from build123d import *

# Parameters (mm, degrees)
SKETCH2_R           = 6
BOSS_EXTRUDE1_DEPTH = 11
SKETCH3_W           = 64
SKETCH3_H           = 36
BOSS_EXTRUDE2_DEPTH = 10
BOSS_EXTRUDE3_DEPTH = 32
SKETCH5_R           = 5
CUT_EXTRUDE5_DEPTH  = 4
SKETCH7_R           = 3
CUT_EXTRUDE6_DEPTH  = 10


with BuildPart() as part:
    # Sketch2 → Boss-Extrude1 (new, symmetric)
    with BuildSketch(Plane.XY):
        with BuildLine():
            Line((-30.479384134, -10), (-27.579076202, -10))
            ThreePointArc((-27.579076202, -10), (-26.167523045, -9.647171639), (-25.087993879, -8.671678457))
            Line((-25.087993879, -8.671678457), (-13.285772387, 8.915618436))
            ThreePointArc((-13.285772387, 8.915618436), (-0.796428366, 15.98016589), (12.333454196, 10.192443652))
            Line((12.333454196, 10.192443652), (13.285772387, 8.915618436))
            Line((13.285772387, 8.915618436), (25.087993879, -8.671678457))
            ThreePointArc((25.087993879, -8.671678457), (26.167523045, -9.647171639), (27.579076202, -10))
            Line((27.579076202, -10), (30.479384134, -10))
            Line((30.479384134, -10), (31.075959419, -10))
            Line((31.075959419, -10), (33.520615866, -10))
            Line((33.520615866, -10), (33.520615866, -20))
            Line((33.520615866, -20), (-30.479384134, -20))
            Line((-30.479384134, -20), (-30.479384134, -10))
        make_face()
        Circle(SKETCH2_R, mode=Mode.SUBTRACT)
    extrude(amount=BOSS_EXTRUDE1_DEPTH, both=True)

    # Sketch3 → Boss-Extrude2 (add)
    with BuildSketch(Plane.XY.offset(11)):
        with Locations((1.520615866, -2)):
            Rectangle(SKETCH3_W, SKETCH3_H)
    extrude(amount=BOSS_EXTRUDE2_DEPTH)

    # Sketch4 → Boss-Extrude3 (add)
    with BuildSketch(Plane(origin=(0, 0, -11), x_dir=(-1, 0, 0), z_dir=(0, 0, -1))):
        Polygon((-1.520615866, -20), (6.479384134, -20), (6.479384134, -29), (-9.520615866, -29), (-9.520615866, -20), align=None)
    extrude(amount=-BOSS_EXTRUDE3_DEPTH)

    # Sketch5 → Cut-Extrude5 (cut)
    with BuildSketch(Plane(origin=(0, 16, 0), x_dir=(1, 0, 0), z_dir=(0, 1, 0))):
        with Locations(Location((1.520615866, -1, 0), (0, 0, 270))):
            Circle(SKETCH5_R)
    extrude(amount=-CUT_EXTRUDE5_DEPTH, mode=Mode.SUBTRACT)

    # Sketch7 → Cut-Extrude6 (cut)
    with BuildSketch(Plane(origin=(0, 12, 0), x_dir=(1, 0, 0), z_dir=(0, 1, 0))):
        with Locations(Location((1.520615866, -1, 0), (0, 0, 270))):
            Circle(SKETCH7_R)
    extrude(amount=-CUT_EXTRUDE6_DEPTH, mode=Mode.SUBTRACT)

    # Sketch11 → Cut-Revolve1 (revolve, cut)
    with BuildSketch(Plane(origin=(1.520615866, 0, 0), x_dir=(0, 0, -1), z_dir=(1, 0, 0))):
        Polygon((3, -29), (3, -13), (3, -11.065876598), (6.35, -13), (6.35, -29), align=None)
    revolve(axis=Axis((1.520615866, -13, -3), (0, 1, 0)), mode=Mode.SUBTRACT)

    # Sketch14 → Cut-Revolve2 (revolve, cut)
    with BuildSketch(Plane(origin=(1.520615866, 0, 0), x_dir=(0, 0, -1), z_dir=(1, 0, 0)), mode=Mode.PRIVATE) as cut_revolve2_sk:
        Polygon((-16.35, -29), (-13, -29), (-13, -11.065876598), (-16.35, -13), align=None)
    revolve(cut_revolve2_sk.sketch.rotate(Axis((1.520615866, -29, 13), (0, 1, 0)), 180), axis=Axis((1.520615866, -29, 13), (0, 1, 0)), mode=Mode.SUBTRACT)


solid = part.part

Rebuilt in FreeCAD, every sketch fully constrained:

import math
import FreeCAD as App
import Part
import Sketcher
Q = App.Units.Quantity


def add_polygon(sketch, points):
    """Adds a closed chain of lines whose ends are joined by coincident constraints."""
    first, n = sketch.GeometryCount, len(points)
    for a, b in zip(points, points[1:] + points[:1]):
        sketch.addGeometry(Part.LineSegment(App.Vector(*a, 0), App.Vector(*b, 0)), False)
    for i in range(n):
        sketch.addConstraint(Sketcher.Constraint("Coincident", first + i, 2, first + (i + 1) % n, 1))

doc = App.newDocument("Part")
body = doc.addObject("PartDesign::Body", "Body")

# Sketch on XY plane
sketch1 = body.newObject("Sketcher::SketchObject", "Sketch")
sketch1.AttachmentSupport = (doc.getObject("XY_Plane"), [""])
sketch1.MapMode = "FlatFace"
sketch1.addGeometry([
    Part.LineSegment(App.Vector(-27.6, -10, 0), App.Vector(-30.5, -10, 0)),  # 0
    Part.LineSegment(App.Vector(-30.5, -10, 0), App.Vector(-30.5, -20, 0)),  # 1
    Part.LineSegment(App.Vector(-30.5, -20, 0), App.Vector(33.5, -20, 0)),  # 2
    Part.LineSegment(App.Vector(33.5, -20, 0), App.Vector(33.5, -10, 0)),  # 3
    Part.LineSegment(App.Vector(33.5, -10, 0), App.Vector(27.6, -10, 0)),  # 4
    Part.ArcOfCircle(Part.Circle(App.Vector(27.6, -7, 0), App.Vector(0, 0, 1), 3), math.radians(-146), math.radians(-90)),  # 5
    Part.LineSegment(App.Vector(25.1, -8.7, 0), App.Vector(13.3, 8.9, 0)),  # 6
    Part.LineSegment(App.Vector(13.3, 8.9, 0), App.Vector(12.3, 10.2, 0)),  # 7
    Part.ArcOfCircle(Part.Circle(App.Vector(0, 0, 0), App.Vector(0, 0, 1), 16), math.radians(40), math.radians(146)),  # 8
    Part.LineSegment(App.Vector(-13.3, 8.9, 0), App.Vector(-25.1, -8.7, 0)),  # 9
    Part.ArcOfCircle(Part.Circle(App.Vector(-27.6, -7, 0), App.Vector(0, 0, 1), 3), math.radians(-90), math.radians(-34)),  # 10
    Part.Circle(App.Vector(0, 0, 0), App.Vector(0, 0, 1), 6),  # 11
], False)
sketch1.addConstraint([
    Sketcher.Constraint("Coincident", 0, 2, 1, 1),
    Sketcher.Constraint("Coincident", 1, 2, 2, 1),
    Sketcher.Constraint("Coincident", 2, 2, 3, 1),
    Sketcher.Constraint("Coincident", 3, 2, 4, 1),
    Sketcher.Constraint("Tangent", 4, 2, 5, 2),
    Sketcher.Constraint("Tangent", 5, 1, 6, 1),
    Sketcher.Constraint("Coincident", 6, 2, 7, 1),
    Sketcher.Constraint("Coincident", 7, 2, 8, 1),
    Sketcher.Constraint("Tangent", 8, 2, 9, 1),
    Sketcher.Constraint("Tangent", 9, 2, 10, 2),
    Sketcher.Constraint("Tangent", 10, 1, 0, 1),
    Sketcher.Constraint("Horizontal", 0),
    Sketcher.Constraint("Vertical", 1),
    Sketcher.Constraint("Horizontal", 2),
    Sketcher.Constraint("Vertical", 3),
    Sketcher.Constraint("Horizontal", 4),
    Sketcher.Constraint("Coincident", 8, 3, -1, 1),
    Sketcher.Constraint("Coincident", 11, 3, -1, 1),
    Sketcher.Constraint("Equal", 5, 10),
    Sketcher.Constraint("Symmetric", 5, 3, 10, 3, -2),
    Sketcher.Constraint("Symmetric", 6, 2, 8, 2, -2),
    Sketcher.Constraint("Diameter", 11, Q("12 mm")),
    Sketcher.Constraint("Radius", 5, Q("3 mm")),
    Sketcher.Constraint("Radius", 8, Q("16 mm")),
    Sketcher.Constraint("DistanceX", 2, 1, 2, 2, Q("64 mm")),
    Sketcher.Constraint("DistanceY", 1, 2, 1, 1, Q("10 mm")),
    Sketcher.Constraint("DistanceY", 5, 3, -1, 1, Q("7 mm")),
    Sketcher.Constraint("DistanceX", 4, 2, 4, 1, Q("5.94154 mm")),
    Sketcher.Constraint("DistanceX", 0, 2, 0, 1, Q("2.900308 mm")),
    Sketcher.Constraint("DistanceX", 7, 2, 6, 2, Q("0.952318 mm")),
])
pad1 = body.newObject("PartDesign::Pad", "Pad")
pad1.Profile = sketch1
pad1.Length = 22
pad1.Midplane = True

# Sketch on XY plane
sketch2 = body.newObject("Sketcher::SketchObject", "Sketch001")
sketch2.AttachmentSupport = (doc.getObject("XY_Plane"), [""])
sketch2.MapMode = "FlatFace"
sketch2.AttachmentOffset = App.Placement(App.Vector(0, 0, 11), App.Rotation())
add_polygon(sketch2, [(-30, 16), (-30, -20), (34, -20), (34, 16)])  # lines 0-3
sketch2.addConstraint([
    Sketcher.Constraint("Vertical", 0),
    Sketcher.Constraint("Horizontal", 1),
    Sketcher.Constraint("Vertical", 2),
    Sketcher.Constraint("Horizontal", 3),
    Sketcher.Constraint("DistanceX", 1, 1, 1, 2, Q("64 mm")),
    Sketcher.Constraint("DistanceY", 0, 2, 0, 1, Q("36 mm")),
    Sketcher.Constraint("DistanceY", 0, 2, -1, 1, Q("20 mm")),
    Sketcher.Constraint("DistanceX", 0, 2, -1, 1, Q("30.479384 mm")),
])
pad2 = body.newObject("PartDesign::Pad", "Pad001")
pad2.Profile = sketch2
pad2.Length = 10

# Sketch on XY plane
sketch3 = body.newObject("Sketcher::SketchObject", "Sketch002")
sketch3.AttachmentSupport = (doc.getObject("XY_Plane"), [""])
sketch3.MapMode = "FlatFace"
sketch3.AttachmentOffset = App.Placement(App.Vector(0, 0, -11), App.Rotation())
add_polygon(sketch3, [(-6, -20), (10, -20), (10, -29), (-6, -29)])  # lines 0-3
sketch3.addConstraint([
    Sketcher.Constraint("Horizontal", 0),
    Sketcher.Constraint("Vertical", 1),
    Sketcher.Constraint("Horizontal", 2),
    Sketcher.Constraint("Vertical", 3),
    Sketcher.Constraint("DistanceX", 0, 1, 0, 2, Q("16 mm")),
    Sketcher.Constraint("DistanceY", 1, 2, 1, 1, Q("9 mm")),
    Sketcher.Constraint("DistanceY", 0, 2, -1, 1, Q("20 mm")),
    Sketcher.Constraint("DistanceX", -1, 1, 0, 2, Q("9.520616 mm")),
])
pad3 = body.newObject("PartDesign::Pad", "Pad002")
pad3.Profile = sketch3
pad3.Length = 32

# Sketch on XZ plane
sketch4 = body.newObject("Sketcher::SketchObject", "Sketch003")
sketch4.AttachmentSupport = (doc.getObject("XZ_Plane"), [""])
sketch4.MapMode = "FlatFace"
sketch4.AttachmentOffset = App.Placement(App.Vector(0, 0, -16), App.Rotation())
sketch4.addGeometry(Part.Circle(App.Vector(2, 1, 0), App.Vector(0, 0, 1), 5), False)
sketch4.addConstraint([
    Sketcher.Constraint("Diameter", 0, Q("10 mm")),
    Sketcher.Constraint("DistanceY", -1, 1, 0, 3, Q("1 mm")),
    Sketcher.Constraint("DistanceX", -1, 1, 0, 3, Q("1.520616 mm")),
])
pocket1 = body.newObject("PartDesign::Pocket", "Pocket")
pocket1.Profile = sketch4
pocket1.Length = 4
pocket1.Reversed = True

# Sketch on XZ plane
sketch5 = body.newObject("Sketcher::SketchObject", "Sketch004")
sketch5.AttachmentSupport = (doc.getObject("XZ_Plane"), [""])
sketch5.MapMode = "FlatFace"
sketch5.AttachmentOffset = App.Placement(App.Vector(0, 0, -12), App.Rotation())
sketch5.addGeometry(Part.Circle(App.Vector(1.5, 1, 0), App.Vector(0, 0, 1), 3), False)
sketch5.addConstraint([
    Sketcher.Constraint("Diameter", 0, Q("6 mm")),
    Sketcher.Constraint("DistanceY", -1, 1, 0, 3, Q("1 mm")),
    Sketcher.Constraint("DistanceX", -1, 1, 0, 3, Q("1.520616 mm")),
])
pocket2 = body.newObject("PartDesign::Pocket", "Pocket001")
pocket2.Profile = sketch5
pocket2.Length = 10
pocket2.Reversed = True

# Sketch on YZ plane
sketch6 = body.newObject("Sketcher::SketchObject", "Sketch005")
sketch6.AttachmentSupport = (doc.getObject("YZ_Plane"), [""])
sketch6.MapMode = "FlatFace"
sketch6.AttachmentOffset = App.Placement(App.Vector(0, 0, 1.520616), App.Rotation())
add_polygon(sketch6, [(-11.1, -3), (-29, -3), (-29, -6.3), (-13, -6.3)])  # lines 0-3
sketch6.addGeometry(Part.LineSegment(App.Vector(-29, -3, 0), App.Vector(-11.1, -3, 0)), True)  # axis
sketch6.addConstraint([
    Sketcher.Constraint("Horizontal", 0),
    Sketcher.Constraint("Vertical", 1),
    Sketcher.Constraint("Horizontal", 2),
    Sketcher.Constraint("Horizontal", 4),
    Sketcher.Constraint("Coincident", 4, 1, 0, 2),
    Sketcher.Constraint("Equal", 0, 4),
    Sketcher.Constraint("DistanceX", 2, 1, 2, 2, Q("16 mm")),
    Sketcher.Constraint("Angle", 3, Q("60 deg")),
    Sketcher.Constraint("DistanceX", 0, 2, -1, 1, Q("29 mm")),
    Sketcher.Constraint("DistanceY", 0, 2, -1, 1, Q("3 mm")),
    Sketcher.Constraint("DistanceY", 1, 2, 1, 1, Q("3.35 mm")),
])
groove = body.newObject("PartDesign::Groove", "Groove")
groove.Profile = sketch6
groove.ReferenceAxis = (sketch6, ["Axis0"])
groove.Angle = 360

# Sketch on YZ plane
sketch7 = body.newObject("Sketcher::SketchObject", "Sketch006")
sketch7.AttachmentSupport = (doc.getObject("YZ_Plane"), [""])
sketch7.MapMode = "FlatFace"
sketch7.AttachmentOffset = App.Placement(App.Vector(0, 0, 1.520616), App.Rotation())
add_polygon(sketch7, [(-29, 16.4), (-29, 13), (-11.1, 13), (-13, 16.4)])  # lines 0-3
sketch7.addGeometry(Part.LineSegment(App.Vector(-29, 13, 0), App.Vector(-11.1, 13, 0)), True)  # axis
sketch7.addConstraint([
    Sketcher.Constraint("Vertical", 0),
    Sketcher.Constraint("Horizontal", 1),
    Sketcher.Constraint("Horizontal", 3),
    Sketcher.Constraint("Horizontal", 4),
    Sketcher.Constraint("Coincident", 4, 1, 0, 2),
    Sketcher.Constraint("Equal", 1, 4),
    Sketcher.Constraint("DistanceX", 3, 2, 3, 1, Q("16 mm")),
    Sketcher.Constraint("Angle", 2, Q("120 deg")),
    Sketcher.Constraint("DistanceX", 0, 2, -1, 1, Q("29 mm")),
    Sketcher.Constraint("DistanceY", -1, 1, 0, 2, Q("13 mm")),
    Sketcher.Constraint("DistanceY", 0, 2, 0, 1, Q("3.35 mm")),
])
groove2 = body.newObject("PartDesign::Groove", "Groove001")
groove2.Profile = sketch7
groove2.ReferenceAxis = (sketch7, ["Axis0"])
groove2.Angle = 360

doc.recompute()
